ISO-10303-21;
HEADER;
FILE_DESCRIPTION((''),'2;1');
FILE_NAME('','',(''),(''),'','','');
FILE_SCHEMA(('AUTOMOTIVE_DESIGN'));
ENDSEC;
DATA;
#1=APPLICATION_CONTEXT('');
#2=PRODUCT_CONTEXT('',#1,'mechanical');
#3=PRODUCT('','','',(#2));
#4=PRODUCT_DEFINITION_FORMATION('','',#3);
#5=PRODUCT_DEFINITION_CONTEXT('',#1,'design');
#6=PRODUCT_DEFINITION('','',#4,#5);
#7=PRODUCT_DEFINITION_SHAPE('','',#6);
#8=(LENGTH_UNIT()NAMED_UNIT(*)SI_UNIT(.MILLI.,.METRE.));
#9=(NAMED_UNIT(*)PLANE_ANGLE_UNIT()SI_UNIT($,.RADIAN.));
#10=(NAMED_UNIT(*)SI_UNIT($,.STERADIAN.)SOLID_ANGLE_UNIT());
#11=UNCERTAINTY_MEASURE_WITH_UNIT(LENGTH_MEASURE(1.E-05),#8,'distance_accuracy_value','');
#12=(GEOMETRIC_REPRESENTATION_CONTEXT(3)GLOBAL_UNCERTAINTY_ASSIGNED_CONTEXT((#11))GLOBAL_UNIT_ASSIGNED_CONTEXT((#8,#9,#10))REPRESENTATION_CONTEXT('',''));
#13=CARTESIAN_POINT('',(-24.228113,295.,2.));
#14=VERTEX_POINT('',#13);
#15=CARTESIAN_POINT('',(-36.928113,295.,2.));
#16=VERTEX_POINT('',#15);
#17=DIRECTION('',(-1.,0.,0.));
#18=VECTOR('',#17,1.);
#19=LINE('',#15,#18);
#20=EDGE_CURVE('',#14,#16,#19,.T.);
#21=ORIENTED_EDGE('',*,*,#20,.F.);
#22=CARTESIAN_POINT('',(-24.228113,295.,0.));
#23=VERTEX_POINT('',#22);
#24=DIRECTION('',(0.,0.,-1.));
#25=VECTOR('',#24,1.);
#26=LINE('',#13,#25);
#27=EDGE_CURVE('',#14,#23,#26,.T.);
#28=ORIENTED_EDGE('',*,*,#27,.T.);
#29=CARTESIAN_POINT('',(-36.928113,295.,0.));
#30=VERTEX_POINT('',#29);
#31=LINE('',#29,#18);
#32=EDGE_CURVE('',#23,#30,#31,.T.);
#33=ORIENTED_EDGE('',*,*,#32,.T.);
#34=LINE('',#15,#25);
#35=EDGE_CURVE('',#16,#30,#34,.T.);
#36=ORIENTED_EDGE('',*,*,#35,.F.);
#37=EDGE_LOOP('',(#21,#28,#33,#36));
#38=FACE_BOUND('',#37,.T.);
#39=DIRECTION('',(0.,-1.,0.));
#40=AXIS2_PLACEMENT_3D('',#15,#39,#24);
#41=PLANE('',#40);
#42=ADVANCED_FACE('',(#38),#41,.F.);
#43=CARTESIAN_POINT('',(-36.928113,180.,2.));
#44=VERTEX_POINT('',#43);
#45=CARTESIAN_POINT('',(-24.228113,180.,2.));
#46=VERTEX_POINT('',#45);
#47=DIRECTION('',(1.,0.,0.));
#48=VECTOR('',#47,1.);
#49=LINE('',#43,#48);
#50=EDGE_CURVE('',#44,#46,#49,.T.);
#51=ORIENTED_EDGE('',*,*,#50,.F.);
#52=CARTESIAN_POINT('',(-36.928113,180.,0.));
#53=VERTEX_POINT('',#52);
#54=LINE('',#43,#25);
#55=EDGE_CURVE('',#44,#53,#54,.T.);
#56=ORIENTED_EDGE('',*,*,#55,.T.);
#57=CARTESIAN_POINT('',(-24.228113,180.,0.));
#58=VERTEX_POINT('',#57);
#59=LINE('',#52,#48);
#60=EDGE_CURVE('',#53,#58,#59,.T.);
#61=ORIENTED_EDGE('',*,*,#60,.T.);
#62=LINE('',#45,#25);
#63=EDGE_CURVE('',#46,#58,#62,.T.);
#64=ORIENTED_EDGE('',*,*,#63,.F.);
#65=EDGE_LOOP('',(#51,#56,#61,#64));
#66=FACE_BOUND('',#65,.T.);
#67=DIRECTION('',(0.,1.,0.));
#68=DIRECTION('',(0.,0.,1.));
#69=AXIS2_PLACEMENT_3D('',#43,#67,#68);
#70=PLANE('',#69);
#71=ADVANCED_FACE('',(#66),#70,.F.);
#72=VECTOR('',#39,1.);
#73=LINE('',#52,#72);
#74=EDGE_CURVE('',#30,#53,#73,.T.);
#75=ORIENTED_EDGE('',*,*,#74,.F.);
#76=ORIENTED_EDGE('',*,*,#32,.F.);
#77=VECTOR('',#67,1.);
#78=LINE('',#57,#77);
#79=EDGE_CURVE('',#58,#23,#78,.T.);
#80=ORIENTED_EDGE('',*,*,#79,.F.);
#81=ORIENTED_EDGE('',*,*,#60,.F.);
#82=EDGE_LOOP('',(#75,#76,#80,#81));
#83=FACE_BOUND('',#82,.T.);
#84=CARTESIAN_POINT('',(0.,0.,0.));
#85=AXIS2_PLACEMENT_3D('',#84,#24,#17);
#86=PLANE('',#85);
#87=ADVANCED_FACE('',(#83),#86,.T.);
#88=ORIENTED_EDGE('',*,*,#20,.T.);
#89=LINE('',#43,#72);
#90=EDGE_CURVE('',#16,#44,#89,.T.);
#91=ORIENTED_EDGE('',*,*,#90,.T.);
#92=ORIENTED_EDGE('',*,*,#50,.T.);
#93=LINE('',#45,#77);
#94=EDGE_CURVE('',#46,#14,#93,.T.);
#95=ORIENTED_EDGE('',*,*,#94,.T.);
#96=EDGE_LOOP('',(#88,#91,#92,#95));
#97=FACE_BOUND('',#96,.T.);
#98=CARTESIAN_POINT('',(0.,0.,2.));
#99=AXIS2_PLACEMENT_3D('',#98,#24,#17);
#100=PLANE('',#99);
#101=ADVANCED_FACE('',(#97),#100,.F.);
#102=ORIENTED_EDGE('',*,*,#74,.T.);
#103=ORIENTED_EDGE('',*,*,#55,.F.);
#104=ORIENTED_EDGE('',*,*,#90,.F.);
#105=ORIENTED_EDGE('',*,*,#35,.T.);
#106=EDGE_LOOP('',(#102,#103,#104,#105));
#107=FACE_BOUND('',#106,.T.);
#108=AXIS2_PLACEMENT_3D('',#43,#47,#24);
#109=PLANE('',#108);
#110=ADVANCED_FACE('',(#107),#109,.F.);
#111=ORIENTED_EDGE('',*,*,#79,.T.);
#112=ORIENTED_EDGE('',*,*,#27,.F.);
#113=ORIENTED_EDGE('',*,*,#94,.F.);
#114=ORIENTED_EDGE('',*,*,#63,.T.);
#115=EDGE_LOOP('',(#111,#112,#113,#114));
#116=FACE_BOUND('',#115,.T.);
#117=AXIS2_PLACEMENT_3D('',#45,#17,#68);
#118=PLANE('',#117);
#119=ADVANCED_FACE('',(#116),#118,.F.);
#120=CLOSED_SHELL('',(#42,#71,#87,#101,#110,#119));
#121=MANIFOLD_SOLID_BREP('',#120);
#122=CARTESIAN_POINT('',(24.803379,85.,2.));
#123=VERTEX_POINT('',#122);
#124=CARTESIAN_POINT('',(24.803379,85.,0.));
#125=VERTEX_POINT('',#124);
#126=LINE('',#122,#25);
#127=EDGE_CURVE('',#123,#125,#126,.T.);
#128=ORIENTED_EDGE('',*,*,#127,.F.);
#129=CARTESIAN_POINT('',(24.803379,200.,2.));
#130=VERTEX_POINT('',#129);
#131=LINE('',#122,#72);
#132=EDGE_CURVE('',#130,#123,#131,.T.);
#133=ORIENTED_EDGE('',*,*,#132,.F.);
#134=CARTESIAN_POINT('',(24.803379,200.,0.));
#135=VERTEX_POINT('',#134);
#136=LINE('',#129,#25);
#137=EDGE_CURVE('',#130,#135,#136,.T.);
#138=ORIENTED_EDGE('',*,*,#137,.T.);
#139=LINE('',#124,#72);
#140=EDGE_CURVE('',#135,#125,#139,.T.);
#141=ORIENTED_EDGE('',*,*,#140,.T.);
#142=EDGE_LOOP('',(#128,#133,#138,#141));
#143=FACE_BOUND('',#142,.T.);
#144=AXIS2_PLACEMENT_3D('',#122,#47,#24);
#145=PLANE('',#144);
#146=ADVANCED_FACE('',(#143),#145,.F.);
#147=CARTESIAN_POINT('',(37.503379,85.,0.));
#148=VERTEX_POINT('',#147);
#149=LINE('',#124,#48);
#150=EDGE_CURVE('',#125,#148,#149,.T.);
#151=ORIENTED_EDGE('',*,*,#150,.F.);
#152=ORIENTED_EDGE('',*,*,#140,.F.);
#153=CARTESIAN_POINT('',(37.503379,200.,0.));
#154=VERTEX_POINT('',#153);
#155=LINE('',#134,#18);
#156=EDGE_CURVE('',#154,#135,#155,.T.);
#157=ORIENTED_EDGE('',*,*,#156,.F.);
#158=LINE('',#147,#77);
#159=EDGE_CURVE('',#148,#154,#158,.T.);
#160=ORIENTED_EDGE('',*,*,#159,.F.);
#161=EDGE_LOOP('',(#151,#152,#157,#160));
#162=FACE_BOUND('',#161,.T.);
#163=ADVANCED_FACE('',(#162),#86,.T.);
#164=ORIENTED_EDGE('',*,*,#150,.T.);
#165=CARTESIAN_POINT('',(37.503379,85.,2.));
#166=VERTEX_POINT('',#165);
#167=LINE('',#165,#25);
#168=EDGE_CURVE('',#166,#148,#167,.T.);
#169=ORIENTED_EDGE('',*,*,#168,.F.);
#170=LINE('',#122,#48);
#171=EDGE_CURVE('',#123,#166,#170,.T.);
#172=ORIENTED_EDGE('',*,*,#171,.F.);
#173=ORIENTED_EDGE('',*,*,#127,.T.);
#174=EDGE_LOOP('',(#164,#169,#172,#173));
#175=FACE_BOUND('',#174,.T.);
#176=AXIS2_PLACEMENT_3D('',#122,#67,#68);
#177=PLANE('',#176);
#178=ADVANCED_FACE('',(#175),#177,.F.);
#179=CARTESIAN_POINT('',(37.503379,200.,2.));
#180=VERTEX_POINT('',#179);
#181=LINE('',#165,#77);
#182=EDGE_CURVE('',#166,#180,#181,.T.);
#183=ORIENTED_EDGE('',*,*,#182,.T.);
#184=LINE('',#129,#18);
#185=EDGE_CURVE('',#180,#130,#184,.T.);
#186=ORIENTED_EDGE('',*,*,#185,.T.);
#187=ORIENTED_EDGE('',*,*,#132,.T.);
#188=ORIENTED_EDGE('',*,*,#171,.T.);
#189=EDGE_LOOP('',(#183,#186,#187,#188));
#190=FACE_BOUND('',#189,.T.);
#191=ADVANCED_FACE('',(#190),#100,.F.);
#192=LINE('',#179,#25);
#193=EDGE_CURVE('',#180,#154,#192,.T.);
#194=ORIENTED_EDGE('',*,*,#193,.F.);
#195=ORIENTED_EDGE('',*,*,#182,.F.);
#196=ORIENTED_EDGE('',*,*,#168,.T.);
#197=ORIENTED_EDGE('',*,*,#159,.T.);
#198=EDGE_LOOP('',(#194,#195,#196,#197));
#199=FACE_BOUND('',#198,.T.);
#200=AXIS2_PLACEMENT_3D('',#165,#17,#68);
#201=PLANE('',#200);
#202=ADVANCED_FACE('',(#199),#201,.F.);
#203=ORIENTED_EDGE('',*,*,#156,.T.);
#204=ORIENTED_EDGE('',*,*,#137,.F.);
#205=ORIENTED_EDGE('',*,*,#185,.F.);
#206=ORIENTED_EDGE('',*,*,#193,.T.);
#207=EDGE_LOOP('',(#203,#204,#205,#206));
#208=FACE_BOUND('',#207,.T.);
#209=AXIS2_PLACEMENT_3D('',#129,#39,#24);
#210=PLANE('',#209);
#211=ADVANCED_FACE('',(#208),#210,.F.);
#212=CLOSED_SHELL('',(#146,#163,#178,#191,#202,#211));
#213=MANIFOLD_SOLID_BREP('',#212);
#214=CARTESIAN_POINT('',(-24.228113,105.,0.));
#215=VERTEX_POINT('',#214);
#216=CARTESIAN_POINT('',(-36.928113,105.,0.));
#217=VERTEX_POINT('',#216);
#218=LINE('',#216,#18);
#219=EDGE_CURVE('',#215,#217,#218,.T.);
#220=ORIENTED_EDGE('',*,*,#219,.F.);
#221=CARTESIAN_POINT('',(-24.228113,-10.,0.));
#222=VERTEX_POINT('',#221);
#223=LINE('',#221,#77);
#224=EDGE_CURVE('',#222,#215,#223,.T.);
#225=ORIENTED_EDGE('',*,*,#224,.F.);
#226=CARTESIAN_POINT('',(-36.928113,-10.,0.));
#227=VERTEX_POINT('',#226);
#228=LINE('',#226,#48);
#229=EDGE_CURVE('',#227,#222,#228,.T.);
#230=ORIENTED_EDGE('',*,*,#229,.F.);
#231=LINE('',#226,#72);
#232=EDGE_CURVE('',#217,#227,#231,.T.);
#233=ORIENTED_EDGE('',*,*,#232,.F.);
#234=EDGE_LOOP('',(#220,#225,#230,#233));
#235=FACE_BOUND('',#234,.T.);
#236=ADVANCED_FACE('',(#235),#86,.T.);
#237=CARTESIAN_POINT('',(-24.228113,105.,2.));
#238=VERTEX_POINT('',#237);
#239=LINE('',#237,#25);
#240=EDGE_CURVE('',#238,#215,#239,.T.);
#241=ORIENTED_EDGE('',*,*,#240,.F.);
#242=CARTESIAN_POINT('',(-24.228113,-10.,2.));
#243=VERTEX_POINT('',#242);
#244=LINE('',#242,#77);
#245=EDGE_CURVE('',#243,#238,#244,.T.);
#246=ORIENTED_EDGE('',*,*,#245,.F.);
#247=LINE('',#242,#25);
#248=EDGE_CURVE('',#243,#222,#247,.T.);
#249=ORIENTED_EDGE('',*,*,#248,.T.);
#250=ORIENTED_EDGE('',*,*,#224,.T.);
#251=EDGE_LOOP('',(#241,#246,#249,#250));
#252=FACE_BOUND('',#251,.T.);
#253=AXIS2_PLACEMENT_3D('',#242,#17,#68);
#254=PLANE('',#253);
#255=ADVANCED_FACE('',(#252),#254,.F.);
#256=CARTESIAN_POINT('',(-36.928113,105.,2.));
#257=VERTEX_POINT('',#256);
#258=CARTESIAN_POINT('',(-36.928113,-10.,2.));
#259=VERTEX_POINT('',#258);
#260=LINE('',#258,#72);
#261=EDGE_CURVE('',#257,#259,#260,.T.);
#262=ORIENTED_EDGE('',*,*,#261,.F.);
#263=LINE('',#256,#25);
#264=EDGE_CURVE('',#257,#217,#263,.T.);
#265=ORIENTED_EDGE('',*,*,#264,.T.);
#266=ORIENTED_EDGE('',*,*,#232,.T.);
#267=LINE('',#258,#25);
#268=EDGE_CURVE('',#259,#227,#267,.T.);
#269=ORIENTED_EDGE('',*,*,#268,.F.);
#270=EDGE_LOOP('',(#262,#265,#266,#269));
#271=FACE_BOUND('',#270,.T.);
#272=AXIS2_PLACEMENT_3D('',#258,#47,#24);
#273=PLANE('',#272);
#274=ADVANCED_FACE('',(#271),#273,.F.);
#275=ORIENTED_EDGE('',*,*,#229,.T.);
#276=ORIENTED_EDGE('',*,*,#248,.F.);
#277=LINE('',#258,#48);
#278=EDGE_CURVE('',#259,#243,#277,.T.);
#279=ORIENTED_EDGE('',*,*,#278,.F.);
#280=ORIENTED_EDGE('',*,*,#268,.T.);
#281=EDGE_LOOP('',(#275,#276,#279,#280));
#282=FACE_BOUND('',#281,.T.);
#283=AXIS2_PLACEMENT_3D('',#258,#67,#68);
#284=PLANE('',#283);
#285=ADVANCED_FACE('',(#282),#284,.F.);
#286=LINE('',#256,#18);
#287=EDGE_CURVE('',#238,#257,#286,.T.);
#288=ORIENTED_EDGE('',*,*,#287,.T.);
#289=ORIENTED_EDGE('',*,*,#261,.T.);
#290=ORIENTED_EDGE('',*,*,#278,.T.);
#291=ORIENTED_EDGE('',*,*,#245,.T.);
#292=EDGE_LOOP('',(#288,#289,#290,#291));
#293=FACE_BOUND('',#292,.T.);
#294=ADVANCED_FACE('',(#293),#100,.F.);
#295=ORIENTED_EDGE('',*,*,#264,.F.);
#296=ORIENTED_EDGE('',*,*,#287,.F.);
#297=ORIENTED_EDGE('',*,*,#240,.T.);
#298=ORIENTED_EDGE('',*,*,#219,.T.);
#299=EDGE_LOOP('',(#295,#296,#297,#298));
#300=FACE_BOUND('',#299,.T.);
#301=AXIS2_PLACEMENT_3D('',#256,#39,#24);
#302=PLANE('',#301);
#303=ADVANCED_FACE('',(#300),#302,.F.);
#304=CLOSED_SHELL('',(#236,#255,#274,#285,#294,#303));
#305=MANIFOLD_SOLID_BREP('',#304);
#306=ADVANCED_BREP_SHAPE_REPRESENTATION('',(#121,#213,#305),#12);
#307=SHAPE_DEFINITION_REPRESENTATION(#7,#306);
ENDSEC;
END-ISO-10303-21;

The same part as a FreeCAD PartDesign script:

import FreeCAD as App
import Part
import Sketcher

V = App.Vector

doc = App.newDocument("Part")
body = doc.addObject("PartDesign::Body", "Body")

sketch1 = body.newObject("Sketcher::SketchObject", "Sketch")
sketch1.AttachmentSupport = (doc.getObject("XY_Plane"), [""])
sketch1.MapMode = "FlatFace"
sketch1.addGeometry([
    Part.LineSegment(V(-37, 105, 0), V(-37, -10, 0)),
    Part.LineSegment(V(-37, -10, 0), V(-24, -10, 0)),
    Part.LineSegment(V(-24, -10, 0), V(-24, 105, 0)),
    Part.LineSegment(V(-24, 105, 0), V(-37, 105, 0)),
], False)
sketch1.addConstraint([
    Sketcher.Constraint("Coincident", 0, 2, 1, 1),
    Sketcher.Constraint("Coincident", 1, 2, 2, 1),
    Sketcher.Constraint("Coincident", 2, 2, 3, 1),
    Sketcher.Constraint("Coincident", 3, 2, 0, 1),
    Sketcher.Constraint("Vertical", 0),
    Sketcher.Constraint("Horizontal", 1),
    Sketcher.Constraint("Vertical", 2),
    Sketcher.Constraint("Horizontal", 3),
    Sketcher.Constraint("DistanceY", 0, 2, 0, 1, 115.0),
    Sketcher.Constraint("DistanceX", 1, 1, 1, 2, 12.7),
    Sketcher.Constraint("DistanceY", 0, 2, -1, 1, 10.0),
    Sketcher.Constraint("DistanceX", 0, 2, -1, 1, 36.928113),
])
pad1 = body.newObject("PartDesign::Pad", "Pad")
pad1.Profile = sketch1
pad1.Length = 2
body2 = doc.addObject("PartDesign::Body", "Body001")

sketch2 = body2.newObject("Sketcher::SketchObject", "Sketch001")
sketch2.AttachmentSupport = (doc.getObject("XY_Plane001"), [""])
sketch2.MapMode = "FlatFace"
sketch2.addGeometry([
    Part.LineSegment(V(25, 200, 0), V(25, 85, 0)),
    Part.LineSegment(V(25, 85, 0), V(38, 85, 0)),
    Part.LineSegment(V(38, 85, 0), V(38, 200, 0)),
    Part.LineSegment(V(38, 200, 0), V(25, 200, 0)),
], False)
sketch2.addConstraint([
    Sketcher.Constraint("Coincident", 0, 2, 1, 1),
    Sketcher.Constraint("Coincident", 1, 2, 2, 1),
    Sketcher.Constraint("Coincident", 2, 2, 3, 1),
    Sketcher.Constraint("Coincident", 3, 2, 0, 1),
    Sketcher.Constraint("Vertical", 0),
    Sketcher.Constraint("Horizontal", 1),
    Sketcher.Constraint("Vertical", 2),
    Sketcher.Constraint("Horizontal", 3),
    Sketcher.Constraint("DistanceY", 0, 2, 0, 1, 115.0),
    Sketcher.Constraint("DistanceX", 1, 1, 1, 2, 12.7),
    Sketcher.Constraint("DistanceY", -1, 1, 0, 2, 85.0),
    Sketcher.Constraint("DistanceX", -1, 1, 0, 2, 24.803379),
])
pad2 = body2.newObject("PartDesign::Pad", "Pad001")
pad2.Profile = sketch2
pad2.Length = 2
body3 = doc.addObject("PartDesign::Body", "Body002")

sketch3 = body3.newObject("Sketcher::SketchObject", "Sketch002")
sketch3.AttachmentSupport = (doc.getObject("XY_Plane002"), [""])
sketch3.MapMode = "FlatFace"
sketch3.addGeometry([
    Part.LineSegment(V(-37, 295, 0), V(-37, 180, 0)),
    Part.LineSegment(V(-37, 180, 0), V(-24, 180, 0)),
    Part.LineSegment(V(-24, 180, 0), V(-24, 295, 0)),
    Part.LineSegment(V(-24, 295, 0), V(-37, 295, 0)),
], False)
sketch3.addConstraint([
    Sketcher.Constraint("Coincident", 0, 2, 1, 1),
    Sketcher.Constraint("Coincident", 1, 2, 2, 1),
    Sketcher.Constraint("Coincident", 2, 2, 3, 1),
    Sketcher.Constraint("Coincident", 3, 2, 0, 1),
    Sketcher.Constraint("Vertical", 0),
    Sketcher.Constraint("Horizontal", 1),
    Sketcher.Constraint("Vertical", 2),
    Sketcher.Constraint("Horizontal", 3),
    Sketcher.Constraint("DistanceY", 0, 2, 0, 1, 115.0),
    Sketcher.Constraint("DistanceX", 1, 1, 1, 2, 12.7),
    Sketcher.Constraint("DistanceY", -1, 1, 0, 2, 180.0),
    Sketcher.Constraint("DistanceX", 0, 2, -1, 1, 36.928113),
])
pad3 = body3.newObject("PartDesign::Pad", "Pad002")
pad3.Profile = sketch3
pad3.Length = 2

doc.recompute()
